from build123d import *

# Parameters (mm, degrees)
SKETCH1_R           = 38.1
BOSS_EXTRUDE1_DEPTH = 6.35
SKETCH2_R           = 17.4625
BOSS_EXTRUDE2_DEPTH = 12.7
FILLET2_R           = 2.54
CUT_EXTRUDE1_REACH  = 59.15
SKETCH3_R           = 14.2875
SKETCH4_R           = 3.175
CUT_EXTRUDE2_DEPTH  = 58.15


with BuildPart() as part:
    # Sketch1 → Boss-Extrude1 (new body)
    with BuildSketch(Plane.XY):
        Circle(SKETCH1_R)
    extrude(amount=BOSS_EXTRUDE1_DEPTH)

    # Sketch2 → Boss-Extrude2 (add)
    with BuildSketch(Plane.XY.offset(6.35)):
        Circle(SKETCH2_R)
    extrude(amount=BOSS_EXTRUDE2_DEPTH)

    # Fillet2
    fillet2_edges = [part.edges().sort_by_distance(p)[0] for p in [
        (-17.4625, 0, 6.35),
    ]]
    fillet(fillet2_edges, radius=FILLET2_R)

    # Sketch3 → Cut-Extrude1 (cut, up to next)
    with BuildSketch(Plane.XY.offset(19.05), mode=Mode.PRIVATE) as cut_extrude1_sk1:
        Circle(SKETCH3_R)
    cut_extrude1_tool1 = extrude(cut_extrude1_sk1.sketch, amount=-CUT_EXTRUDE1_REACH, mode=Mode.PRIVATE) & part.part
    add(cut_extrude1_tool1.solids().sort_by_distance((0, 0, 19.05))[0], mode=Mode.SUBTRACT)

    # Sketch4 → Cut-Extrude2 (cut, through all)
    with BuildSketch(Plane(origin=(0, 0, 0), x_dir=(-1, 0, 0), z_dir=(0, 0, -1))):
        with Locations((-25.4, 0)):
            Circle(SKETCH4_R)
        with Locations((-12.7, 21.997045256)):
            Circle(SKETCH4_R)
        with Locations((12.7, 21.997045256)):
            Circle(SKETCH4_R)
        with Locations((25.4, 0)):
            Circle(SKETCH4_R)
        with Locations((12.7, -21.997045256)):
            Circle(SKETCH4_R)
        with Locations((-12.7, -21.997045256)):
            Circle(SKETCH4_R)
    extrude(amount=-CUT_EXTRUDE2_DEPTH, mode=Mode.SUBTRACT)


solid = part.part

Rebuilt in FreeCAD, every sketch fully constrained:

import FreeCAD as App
import Part
import Sketcher
from FreeCAD import Vector
Q = App.Units.Quantity


def edges_at(feature, points):
    """Names of the edges that pass closest to the given points."""
    edges = feature.Shape.Edges
    near = lambda p: min(range(len(edges)), key=lambda i: edges[i].distToShape(Part.Vertex(*p))[0])
    return sorted({f"Edge{near(p) + 1}" for p in points})

doc = App.newDocument("Part")
params = doc.addObject("Spreadsheet::Sheet", "Params")
for row, (alias, value) in enumerate([
    ("sketch1_diameter", "3 in"),
    ("pad1_length", "0.25 in"),
    ("sketch2_diameter", "1.375 in"),
    ("pad2_length", "0.5 in"),
    ("fillet_radius", "0.1 in"),
    ("sketch3_diameter", "1.125 in"),
    ("sketch4_diameter", "0.25 in"),
], start=1):
    params.set(f"A{row}", alias)
    params.set(f"B{row}", "=" + value)
    params.setAlias(f"B{row}", alias)

body = doc.addObject("PartDesign::Body", "Body")

# Sketch on XY plane
sketch1 = doc.addObject("Sketcher::SketchObject", "Sketch")
body.addObject(sketch1)
sketch1.AttachmentSupport = (doc.XY_Plane, [""])
sketch1.MapMode = "FlatFace"
sketch1.addGeometry(Part.Circle(Vector(0, 0, 0), Vector(0, 0, 1), 38.1), False)
sketch1.addConstraint([
    Sketcher.Constraint("Coincident", 0, 3, -1, 1),
    Sketcher.Constraint("Diameter", 0, Q("3 in")),
])
sketch1.setExpression("Constraints[1]", "Params.sketch1_diameter")
pad1 = doc.addObject("PartDesign::Pad", "Pad")
body.addObject(pad1)
pad1.Profile = sketch1
pad1.setExpression("Length", "Params.pad1_length")

# Sketch on XY plane
sketch2 = doc.addObject("Sketcher::SketchObject", "Sketch001")
body.addObject(sketch2)
sketch2.AttachmentSupport = (doc.XY_Plane, [""])
sketch2.MapMode = "FlatFace"
sketch2.AttachmentOffset = App.Placement(Vector(0, 0, 0.25 * 25.4), App.Rotation())
sketch2.addGeometry(Part.Circle(Vector(0, 0, 0), Vector(0, 0, 1), 17.4625), False)
sketch2.addConstraint([
    Sketcher.Constraint("Coincident", 0, 3, -1, 1),
    Sketcher.Constraint("Diameter", 0, Q("1.375 in")),
])
sketch2.setExpression("Constraints[1]", "Params.sketch2_diameter")
pad2 = doc.addObject("PartDesign::Pad", "Pad001")
body.addObject(pad2)
pad2.Profile = sketch2
pad2.setExpression("Length", "Params.pad2_length")
doc.recompute()

fillet = doc.addObject("PartDesign::Fillet", "Fillet")
body.addObject(fillet)
fillet.Base = (pad2, edges_at(pad2, [(-17.462, 0, 6.35)]))
fillet.setExpression("Radius", "Params.fillet_radius")

# Sketch on XY plane
sketch3 = doc.addObject("Sketcher::SketchObject", "Sketch002")
body.addObject(sketch3)
sketch3.AttachmentSupport = (doc.XY_Plane, [""])
sketch3.MapMode = "FlatFace"
sketch3.AttachmentOffset = App.Placement(Vector(0, 0, 0.75 * 25.4), App.Rotation())
sketch3.addGeometry(Part.Circle(Vector(0, 0, 0), Vector(0, 0, 1), 14.2875), False)
sketch3.addConstraint([
    Sketcher.Constraint("Coincident", 0, 3, -1, 1),
    Sketcher.Constraint("Diameter", 0, Q("1.125 in")),
])
sketch3.setExpression("Constraints[1]", "Params.sketch3_diameter")
pocket1 = doc.addObject("PartDesign::Pocket", "Pocket")
body.addObject(pocket1)
pocket1.Profile = sketch3
pocket1.Type = "UpToFirst"

# Sketch on XY plane
sketch4 = doc.addObject("Sketcher::SketchObject", "Sketch003")
body.addObject(sketch4)
sketch4.AttachmentSupport = (doc.XY_Plane, [""])
sketch4.MapMode = "FlatFace"
sketch4.addGeometry([
    Part.Circle(Vector(25.4, 0, 0), Vector(0, 0, 1), 3.175),  # 0
    Part.Circle(Vector(12.7, 21.997045, 0), Vector(0, 0, 1), 3.175),  # 1
    Part.Circle(Vector(-12.7, 21.997045, 0), Vector(0, 0, 1), 3.175),  # 2
    Part.Circle(Vector(-25.4, 0, 0), Vector(0, 0, 1), 3.175),  # 3
    Part.Circle(Vector(-12.7, -21.997045, 0), Vector(0, 0, 1), 3.175),  # 4
    Part.Circle(Vector(12.7, -21.997045, 0), Vector(0, 0, 1), 3.175),  # 5
], False)
sketch4.addConstraint([
    Sketcher.Constraint("Equal", 0, 1),
    Sketcher.Constraint("Equal", 1, 2),
    Sketcher.Constraint("Equal", 2, 3),
    Sketcher.Constraint("Equal", 3, 4),
    Sketcher.Constraint("Equal", 4, 5),
    Sketcher.Constraint("Symmetric", 0, 3, 3, 3, -1, 1),
    Sketcher.Constraint("Symmetric", 1, 3, 4, 3, -1, 1),
    Sketcher.Constraint("Symmetric", 2, 3, 5, 3, -1, 1),
    Sketcher.Constraint("Symmetric", 1, 3, 2, 3, -2),
    Sketcher.Constraint("PointOnObject", 0, 3, -1),
    Sketcher.Constraint("Diameter", 0, Q("0.25 in")),
    Sketcher.Constraint("DistanceX", -1, 1, 0, 3, Q("1 in")),
    Sketcher.Constraint("DistanceX", 2, 3, 1, 3, Q("1 in")),
    Sketcher.Constraint("DistanceY", 4, 3, 2, 3, Q("43.994091 mm")),
])
sketch4.setExpression("Constraints[10]", "Params.sketch4_diameter")
pocket2 = doc.addObject("PartDesign::Pocket", "Pocket001")
body.addObject(pocket2)
pocket2.Profile = sketch4
pocket2.Type = "ThroughAll"
pocket2.Reversed = True

doc.recompute()
